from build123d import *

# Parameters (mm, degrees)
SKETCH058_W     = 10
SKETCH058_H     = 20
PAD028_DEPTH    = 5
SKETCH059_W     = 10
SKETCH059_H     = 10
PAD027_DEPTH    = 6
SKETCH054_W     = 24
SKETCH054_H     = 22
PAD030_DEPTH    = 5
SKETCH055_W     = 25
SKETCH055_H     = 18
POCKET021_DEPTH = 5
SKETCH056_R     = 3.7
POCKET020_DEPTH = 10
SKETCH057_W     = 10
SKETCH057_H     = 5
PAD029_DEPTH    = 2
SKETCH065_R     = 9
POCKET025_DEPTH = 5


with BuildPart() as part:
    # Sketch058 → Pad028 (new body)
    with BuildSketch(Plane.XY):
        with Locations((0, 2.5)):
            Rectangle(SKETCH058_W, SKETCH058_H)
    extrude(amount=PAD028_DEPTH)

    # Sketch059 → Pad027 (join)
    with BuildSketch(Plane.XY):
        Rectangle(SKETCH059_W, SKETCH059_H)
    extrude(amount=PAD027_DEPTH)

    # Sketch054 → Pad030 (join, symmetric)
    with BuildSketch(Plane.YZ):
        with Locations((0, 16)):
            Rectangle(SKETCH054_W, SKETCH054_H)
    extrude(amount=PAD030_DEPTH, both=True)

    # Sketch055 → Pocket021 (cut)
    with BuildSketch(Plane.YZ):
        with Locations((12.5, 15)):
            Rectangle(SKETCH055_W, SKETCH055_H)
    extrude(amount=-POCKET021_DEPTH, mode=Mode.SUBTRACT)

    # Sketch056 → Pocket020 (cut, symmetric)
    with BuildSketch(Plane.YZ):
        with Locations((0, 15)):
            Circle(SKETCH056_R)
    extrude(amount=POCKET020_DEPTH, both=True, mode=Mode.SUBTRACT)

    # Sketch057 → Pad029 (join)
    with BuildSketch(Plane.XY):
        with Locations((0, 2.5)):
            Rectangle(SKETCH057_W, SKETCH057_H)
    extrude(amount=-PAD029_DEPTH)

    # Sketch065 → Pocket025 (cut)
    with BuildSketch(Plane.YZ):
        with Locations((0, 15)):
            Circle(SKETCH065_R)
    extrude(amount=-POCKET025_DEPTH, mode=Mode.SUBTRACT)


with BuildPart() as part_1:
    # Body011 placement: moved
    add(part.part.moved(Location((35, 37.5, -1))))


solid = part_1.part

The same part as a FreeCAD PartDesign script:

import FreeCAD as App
import Part
import Sketcher

V = App.Vector
Q = App.Units.Quantity


def add_polygon(sketch, points):
    """Adds a closed chain of lines whose ends are joined by coincident constraints."""
    first, n = sketch.GeometryCount, len(points)
    for a, b in zip(points, points[1:] + points[:1]):
        sketch.addGeometry(Part.LineSegment(App.Vector(*a, 0), App.Vector(*b, 0)), False)
    for i in range(n):
        sketch.addConstraint(Sketcher.Constraint("Coincident", first + i, 2, first + (i + 1) % n, 1))

doc = App.newDocument("Part")
body = doc.addObject("PartDesign::Body", "Body")

sketch1 = doc.addObject("Sketcher::SketchObject", "Sketch")
body.addObject(sketch1)
sketch1.AttachmentSupport = (doc.XY_Plane, [""])
sketch1.MapMode = "FlatFace"
add_polygon(sketch1, [(-5, 12.5), (-5, -7.5), (5, -7.5), (5, 12.5)])
sketch1.addConstraint(Sketcher.Constraint("Vertical", 0))
sketch1.addConstraint(Sketcher.Constraint("Horizontal", 1))
sketch1.addConstraint(Sketcher.Constraint("Vertical", 2))
sketch1.addConstraint(Sketcher.Constraint("Horizontal", 3))
sketch1.addConstraint(Sketcher.Constraint("DistanceX", 1, 1, 1, 2, Q("10 mm")))
sketch1.addConstraint(Sketcher.Constraint("DistanceY", 0, 2, 0, 1, Q("20 mm")))
sketch1.addConstraint(Sketcher.Constraint("DistanceX", 0, 2, -1, 1, Q("5 mm")))
sketch1.addConstraint(Sketcher.Constraint("DistanceY", 0, 2, -1, 1, Q("7.5 mm")))
pad1 = doc.addObject("PartDesign::Pad", "Pad")
body.addObject(pad1)
pad1.Profile = sketch1
pad1.Length = 5

sketch2 = doc.addObject("Sketcher::SketchObject", "Sketch001")
body.addObject(sketch2)
sketch2.AttachmentSupport = (doc.XY_Plane, [""])
sketch2.MapMode = "FlatFace"
add_polygon(sketch2, [(-5, 5), (-5, -5), (5, -5), (5, 5)])
sketch2.addConstraint(Sketcher.Constraint("Vertical", 0))
sketch2.addConstraint(Sketcher.Constraint("Horizontal", 1))
sketch2.addConstraint(Sketcher.Constraint("Vertical", 2))
sketch2.addConstraint(Sketcher.Constraint("Horizontal", 3))
sketch2.addConstraint(Sketcher.Constraint("Symmetric", 0, 2, 2, 2, -1, 1))
sketch2.addConstraint(Sketcher.Constraint("Equal", 3, 0))
sketch2.addConstraint(Sketcher.Constraint("DistanceX", 1, 1, 1, 2, Q("10 mm")))
pad2 = doc.addObject("PartDesign::Pad", "Pad001")
body.addObject(pad2)
pad2.Profile = sketch2
pad2.Length = 6

sketch3 = doc.addObject("Sketcher::SketchObject", "Sketch002")
body.addObject(sketch3)
sketch3.AttachmentSupport = (doc.YZ_Plane, [""])
sketch3.MapMode = "FlatFace"
add_polygon(sketch3, [(-12, 27), (-12, 5), (12, 5), (12, 27)])
sketch3.addConstraint(Sketcher.Constraint("Vertical", 0))
sketch3.addConstraint(Sketcher.Constraint("Horizontal", 1))
sketch3.addConstraint(Sketcher.Constraint("Vertical", 2))
sketch3.addConstraint(Sketcher.Constraint("Horizontal", 3))
sketch3.addConstraint(Sketcher.Constraint("DistanceX", 1, 1, 1, 2, Q("24 mm")))
sketch3.addConstraint(Sketcher.Constraint("DistanceY", 0, 2, 0, 1, Q("22 mm")))
sketch3.addConstraint(Sketcher.Constraint("DistanceX", 0, 2, -1, 1, Q("12 mm")))
sketch3.addConstraint(Sketcher.Constraint("DistanceY", -1, 1, 0, 2, Q("5 mm")))
pad3 = doc.addObject("PartDesign::Pad", "Pad002")
body.addObject(pad3)
pad3.Profile = sketch3
pad3.Length = 10
pad3.Midplane = True

sketch4 = doc.addObject("Sketcher::SketchObject", "Sketch003")
body.addObject(sketch4)
sketch4.AttachmentSupport = (doc.YZ_Plane, [""])
sketch4.MapMode = "FlatFace"
add_polygon(sketch4, [(0, 24), (0, 6), (25, 6), (25, 24)])
sketch4.addConstraint(Sketcher.Constraint("Vertical", 0))
sketch4.addConstraint(Sketcher.Constraint("Horizontal", 1))
sketch4.addConstraint(Sketcher.Constraint("Vertical", 2))
sketch4.addConstraint(Sketcher.Constraint("Horizontal", 3))
sketch4.addConstraint(Sketcher.Constraint("PointOnObject", 0, 2, -2))
sketch4.addConstraint(Sketcher.Constraint("DistanceX", 1, 1, 1, 2, Q("25 mm")))
sketch4.addConstraint(Sketcher.Constraint("DistanceY", 0, 2, 0, 1, Q("18 mm")))
sketch4.addConstraint(Sketcher.Constraint("DistanceY", -1, 1, 0, 2, Q("6 mm")))
pocket1 = doc.addObject("PartDesign::Pocket", "Pocket")
body.addObject(pocket1)
pocket1.Profile = sketch4
pocket1.Length = 5

sketch5 = doc.addObject("Sketcher::SketchObject", "Sketch004")
body.addObject(sketch5)
sketch5.AttachmentSupport = (doc.YZ_Plane, [""])
sketch5.MapMode = "FlatFace"
sketch5.addGeometry(Part.Circle(V(0, 15, 0), V(0, 0, 1), 3.7), False)
sketch5.addConstraint(Sketcher.Constraint("PointOnObject", 0, 3, -2))
sketch5.addConstraint(Sketcher.Constraint("Diameter", 0, Q("7.4 mm")))
sketch5.addConstraint(Sketcher.Constraint("DistanceY", -1, 1, 0, 3, Q("15 mm")))
pocket2 = doc.addObject("PartDesign::Pocket", "Pocket001")
body.addObject(pocket2)
pocket2.Profile = sketch5
pocket2.Length = 20
pocket2.Midplane = True

sketch6 = doc.addObject("Sketcher::SketchObject", "Sketch005")
body.addObject(sketch6)
sketch6.AttachmentSupport = (doc.XY_Plane, [""])
sketch6.MapMode = "FlatFace"
add_polygon(sketch6, [(-5, 5), (-5, 0), (5, 0), (5, 5)])
sketch6.addConstraint(Sketcher.Constraint("Vertical", 0))
sketch6.addConstraint(Sketcher.Constraint("Horizontal", 1))
sketch6.addConstraint(Sketcher.Constraint("Vertical", 2))
sketch6.addConstraint(Sketcher.Constraint("Horizontal", 3))
sketch6.addConstraint(Sketcher.Constraint("Symmetric", 0, 2, 1, 2, -1, 1))
sketch6.addConstraint(Sketcher.Constraint("DistanceX", 1, 1, 1, 2, Q("10 mm")))
sketch6.addConstraint(Sketcher.Constraint("DistanceY", 0, 2, 0, 1, Q("5 mm")))
pad4 = doc.addObject("PartDesign::Pad", "Pad003")
body.addObject(pad4)
pad4.Profile = sketch6
pad4.Length = 2
pad4.Reversed = True

sketch7 = doc.addObject("Sketcher::SketchObject", "Sketch006")
body.addObject(sketch7)
sketch7.AttachmentSupport = (doc.YZ_Plane, [""])
sketch7.MapMode = "FlatFace"
sketch7.addGeometry(Part.Circle(V(0, 15, 0), V(0, 0, 1), 9), False)
sketch7.addConstraint(Sketcher.Constraint("PointOnObject", 0, 3, -2))
sketch7.addConstraint(Sketcher.Constraint("Diameter", 0, Q("18 mm")))
sketch7.addConstraint(Sketcher.Constraint("DistanceY", -1, 1, 0, 3, Q("15 mm")))
pocket3 = doc.addObject("PartDesign::Pocket", "Pocket002")
body.addObject(pocket3)
pocket3.Profile = sketch7
pocket3.Length = 5
body2 = doc.addObject("PartDesign::Body", "Body001")
doc.recompute()

body.Placement = App.Placement(V(35, 37.5, -1), App.Rotation(V(0, 0, 1), 0))
boolean = doc.addObject("PartDesign::Boolean", "Boolean")
body2.addObject(boolean)
boolean.Type = "Fuse"
boolean.addObjects([body])

doc.recompute()
